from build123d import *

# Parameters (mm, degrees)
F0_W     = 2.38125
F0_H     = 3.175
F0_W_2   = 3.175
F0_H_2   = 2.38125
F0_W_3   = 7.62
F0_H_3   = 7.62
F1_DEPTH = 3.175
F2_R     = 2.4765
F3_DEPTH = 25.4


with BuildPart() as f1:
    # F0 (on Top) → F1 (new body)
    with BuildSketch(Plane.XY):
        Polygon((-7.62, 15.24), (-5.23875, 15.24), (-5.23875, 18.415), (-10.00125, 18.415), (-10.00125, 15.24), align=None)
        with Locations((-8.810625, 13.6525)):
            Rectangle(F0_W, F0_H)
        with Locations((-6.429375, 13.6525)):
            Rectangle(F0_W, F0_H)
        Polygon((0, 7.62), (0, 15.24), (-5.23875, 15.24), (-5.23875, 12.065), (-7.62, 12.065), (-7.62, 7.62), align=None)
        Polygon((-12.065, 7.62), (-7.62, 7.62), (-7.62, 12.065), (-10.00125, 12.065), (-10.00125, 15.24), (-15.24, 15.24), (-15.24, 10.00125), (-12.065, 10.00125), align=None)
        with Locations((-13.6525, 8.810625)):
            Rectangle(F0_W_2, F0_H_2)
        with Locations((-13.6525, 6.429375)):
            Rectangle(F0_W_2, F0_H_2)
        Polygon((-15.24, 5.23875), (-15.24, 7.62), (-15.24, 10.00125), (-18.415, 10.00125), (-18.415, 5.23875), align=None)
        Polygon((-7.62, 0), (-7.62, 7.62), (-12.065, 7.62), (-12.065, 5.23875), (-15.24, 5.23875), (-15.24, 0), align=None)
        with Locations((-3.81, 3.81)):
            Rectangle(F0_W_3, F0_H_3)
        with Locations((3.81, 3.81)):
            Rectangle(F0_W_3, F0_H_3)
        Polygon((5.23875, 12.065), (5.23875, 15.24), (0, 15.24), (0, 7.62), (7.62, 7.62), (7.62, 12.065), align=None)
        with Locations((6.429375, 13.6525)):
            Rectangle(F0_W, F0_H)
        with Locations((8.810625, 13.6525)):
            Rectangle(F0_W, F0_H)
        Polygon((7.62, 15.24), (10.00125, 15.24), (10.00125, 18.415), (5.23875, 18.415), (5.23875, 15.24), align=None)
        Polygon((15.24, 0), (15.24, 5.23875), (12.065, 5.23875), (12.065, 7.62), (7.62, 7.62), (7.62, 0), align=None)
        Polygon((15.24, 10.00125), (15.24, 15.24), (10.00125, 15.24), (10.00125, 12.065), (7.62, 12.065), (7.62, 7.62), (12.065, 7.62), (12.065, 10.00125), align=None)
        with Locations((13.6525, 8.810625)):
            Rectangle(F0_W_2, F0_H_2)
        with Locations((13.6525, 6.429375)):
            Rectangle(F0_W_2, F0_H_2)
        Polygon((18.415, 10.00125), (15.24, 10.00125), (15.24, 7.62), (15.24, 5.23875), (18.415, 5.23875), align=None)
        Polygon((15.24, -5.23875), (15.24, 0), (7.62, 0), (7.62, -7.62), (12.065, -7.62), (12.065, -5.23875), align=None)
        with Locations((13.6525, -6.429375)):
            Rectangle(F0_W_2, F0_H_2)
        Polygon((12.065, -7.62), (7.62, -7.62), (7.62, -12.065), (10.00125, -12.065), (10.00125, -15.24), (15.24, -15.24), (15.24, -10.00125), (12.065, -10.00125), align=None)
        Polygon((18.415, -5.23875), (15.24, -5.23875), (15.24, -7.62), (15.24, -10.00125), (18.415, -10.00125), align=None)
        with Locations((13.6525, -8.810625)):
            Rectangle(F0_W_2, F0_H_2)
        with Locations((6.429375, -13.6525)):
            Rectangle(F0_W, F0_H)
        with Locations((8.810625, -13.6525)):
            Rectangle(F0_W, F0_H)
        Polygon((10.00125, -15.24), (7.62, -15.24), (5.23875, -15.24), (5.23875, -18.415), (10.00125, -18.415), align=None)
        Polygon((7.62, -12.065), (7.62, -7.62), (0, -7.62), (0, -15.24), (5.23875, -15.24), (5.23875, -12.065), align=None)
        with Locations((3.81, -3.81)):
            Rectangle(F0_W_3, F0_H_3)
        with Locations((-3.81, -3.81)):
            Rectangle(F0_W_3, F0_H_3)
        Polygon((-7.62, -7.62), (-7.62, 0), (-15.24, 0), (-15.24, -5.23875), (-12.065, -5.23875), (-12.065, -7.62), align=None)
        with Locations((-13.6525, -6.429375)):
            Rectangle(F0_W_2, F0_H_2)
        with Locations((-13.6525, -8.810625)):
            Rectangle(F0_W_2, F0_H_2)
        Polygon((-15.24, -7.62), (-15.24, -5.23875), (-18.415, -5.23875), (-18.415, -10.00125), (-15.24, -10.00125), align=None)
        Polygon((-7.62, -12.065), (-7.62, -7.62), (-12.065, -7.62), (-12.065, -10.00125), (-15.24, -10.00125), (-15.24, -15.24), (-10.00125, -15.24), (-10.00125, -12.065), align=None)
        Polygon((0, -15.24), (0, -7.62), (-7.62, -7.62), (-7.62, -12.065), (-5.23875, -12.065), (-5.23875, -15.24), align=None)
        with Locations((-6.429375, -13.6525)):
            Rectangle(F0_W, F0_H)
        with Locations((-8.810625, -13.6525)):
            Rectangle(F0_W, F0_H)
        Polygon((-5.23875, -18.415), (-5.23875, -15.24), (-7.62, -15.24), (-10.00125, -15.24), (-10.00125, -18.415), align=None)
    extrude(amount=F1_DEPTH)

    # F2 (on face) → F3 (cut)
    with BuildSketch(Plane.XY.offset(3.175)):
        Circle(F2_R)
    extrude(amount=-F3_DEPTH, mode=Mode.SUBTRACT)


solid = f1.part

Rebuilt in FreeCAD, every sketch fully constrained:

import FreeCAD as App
import Part
import Sketcher
from FreeCAD import Vector
Q = App.Units.Quantity

doc = App.newDocument("Part")
params = doc.addObject("Spreadsheet::Sheet", "Params")
for row, (alias, value) in enumerate([
    ("sketch1_width", "0.125 in"),
    ("sketch1_width2", "0.1875 in"),
    ("pad1_length", "0.125 in"),
    ("sketch2_diameter", "0.195 in"),
    ("pocket1_length", "1 in"),
], start=1):
    params.set(f"A{row}", alias)
    params.set(f"B{row}", "=" + value)
    params.setAlias(f"B{row}", alias)

body = doc.addObject("PartDesign::Body", "Body")

# Sketch on XY plane
sketch1 = body.newObject("Sketcher::SketchObject", "Sketch")
sketch1.AttachmentSupport = (doc.getObject("XY_Plane"), [""])
sketch1.MapMode = "FlatFace"
sketch1.addGeometry(Part.LineSegment(Vector(15.2, -15.2, 0), Vector(15.2, -10, 0)), False)
sketch1.addGeometry(Part.LineSegment(Vector(15.2, -10, 0), Vector(18.4, -10, 0)), False)
sketch1.addGeometry(Part.LineSegment(Vector(18.4, -10, 0), Vector(18.4, -5.2, 0)), False)
sketch1.addGeometry(Part.LineSegment(Vector(18.4, -5.2, 0), Vector(15.2, -5.2, 0)), False)
sketch1.addGeometry(Part.LineSegment(Vector(15.2, -5.2, 0), Vector(15.2, 5.2, 0)), False)
sketch1.addGeometry(Part.LineSegment(Vector(15.2, 5.2, 0), Vector(18.4, 5.2, 0)), False)
sketch1.addGeometry(Part.LineSegment(Vector(18.4, 5.2, 0), Vector(18.4, 10, 0)), False)
sketch1.addGeometry(Part.LineSegment(Vector(18.4, 10, 0), Vector(15.2, 10, 0)), False)
sketch1.addGeometry(Part.LineSegment(Vector(15.2, 10, 0), Vector(15.2, 15.2, 0)), False)
sketch1.addGeometry(Part.LineSegment(Vector(15.2, 15.2, 0), Vector(10, 15.2, 0)), False)
sketch1.addGeometry(Part.LineSegment(Vector(10, 15.2, 0), Vector(10, 18.4, 0)), False)
sketch1.addGeometry(Part.LineSegment(Vector(10, 18.4, 0), Vector(5.2, 18.4, 0)), False)
sketch1.addGeometry(Part.LineSegment(Vector(5.2, 18.4, 0), Vector(5.2, 15.2, 0)), False)
sketch1.addGeometry(Part.LineSegment(Vector(5.2, 15.2, 0), Vector(-5.2, 15.2, 0)), False)
sketch1.addGeometry(Part.LineSegment(Vector(-5.2, 15.2, 0), Vector(-5.2, 18.4, 0)), False)
sketch1.addGeometry(Part.LineSegment(Vector(-5.2, 18.4, 0), Vector(-10, 18.4, 0)), False)
sketch1.addGeometry(Part.LineSegment(Vector(-10, 18.4, 0), Vector(-10, 15.2, 0)), False)
sketch1.addGeometry(Part.LineSegment(Vector(-10, 15.2, 0), Vector(-15.2, 15.2, 0)), False)
sketch1.addGeometry(Part.LineSegment(Vector(-15.2, 15.2, 0), Vector(-15.2, 10, 0)), False)
sketch1.addGeometry(Part.LineSegment(Vector(-15.2, 10, 0), Vector(-18.4, 10, 0)), False)
sketch1.addGeometry(Part.LineSegment(Vector(-18.4, 10, 0), Vector(-18.4, 5.2, 0)), False)
sketch1.addGeometry(Part.LineSegment(Vector(-18.4, 5.2, 0), Vector(-15.2, 5.2, 0)), False)
sketch1.addGeometry(Part.LineSegment(Vector(-15.2, 5.2, 0), Vector(-15.2, -5.2, 0)), False)
sketch1.addGeometry(Part.LineSegment(Vector(-15.2, -5.2, 0), Vector(-18.4, -5.2, 0)), False)
sketch1.addGeometry(Part.LineSegment(Vector(-18.4, -5.2, 0), Vector(-18.4, -10, 0)), False)
sketch1.addGeometry(Part.LineSegment(Vector(-18.4, -10, 0), Vector(-15.2, -10, 0)), False)
sketch1.addGeometry(Part.LineSegment(Vector(-15.2, -10, 0), Vector(-15.2, -15.2, 0)), False)
sketch1.addGeometry(Part.LineSegment(Vector(-15.2, -15.2, 0), Vector(-10, -15.2, 0)), False)
sketch1.addGeometry(Part.LineSegment(Vector(-10, -15.2, 0), Vector(-10, -18.4, 0)), False)
sketch1.addGeometry(Part.LineSegment(Vector(-10, -18.4, 0), Vector(-5.2, -18.4, 0)), False)
sketch1.addGeometry(Part.LineSegment(Vector(-5.2, -18.4, 0), Vector(-5.2, -15.2, 0)), False)
sketch1.addGeometry(Part.LineSegment(Vector(-5.2, -15.2, 0), Vector(5.2, -15.2, 0)), False)
sketch1.addGeometry(Part.LineSegment(Vector(5.2, -15.2, 0), Vector(5.2, -18.4, 0)), False)
sketch1.addGeometry(Part.LineSegment(Vector(5.2, -18.4, 0), Vector(10, -18.4, 0)), False)
sketch1.addGeometry(Part.LineSegment(Vector(10, -18.4, 0), Vector(10, -15.2, 0)), False)
sketch1.addGeometry(Part.LineSegment(Vector(10, -15.2, 0), Vector(15.2, -15.2, 0)), False)
sketch1.addConstraint(Sketcher.Constraint("Coincident", 0, 2, 1, 1))
sketch1.addConstraint(Sketcher.Constraint("Coincident", 1, 2, 2, 1))
sketch1.addConstraint(Sketcher.Constraint("Coincident", 2, 2, 3, 1))
sketch1.addConstraint(Sketcher.Constraint("Coincident", 3, 2, 4, 1))
sketch1.addConstraint(Sketcher.Constraint("Coincident", 4, 2, 5, 1))
sketch1.addConstraint(Sketcher.Constraint("Coincident", 5, 2, 6, 1))
sketch1.addConstraint(Sketcher.Constraint("Coincident", 6, 2, 7, 1))
sketch1.addConstraint(Sketcher.Constraint("Coincident", 7, 2, 8, 1))
sketch1.addConstraint(Sketcher.Constraint("Coincident", 8, 2, 9, 1))
sketch1.addConstraint(Sketcher.Constraint("Coincident", 9, 2, 10, 1))
sketch1.addConstraint(Sketcher.Constraint("Coincident", 10, 2, 11, 1))
sketch1.addConstraint(Sketcher.Constraint("Coincident", 11, 2, 12, 1))
sketch1.addConstraint(Sketcher.Constraint("Coincident", 12, 2, 13, 1))
sketch1.addConstraint(Sketcher.Constraint("Coincident", 13, 2, 14, 1))
sketch1.addConstraint(Sketcher.Constraint("Coincident", 14, 2, 15, 1))
sketch1.addConstraint(Sketcher.Constraint("Coincident", 15, 2, 16, 1))
sketch1.addConstraint(Sketcher.Constraint("Coincident", 16, 2, 17, 1))
sketch1.addConstraint(Sketcher.Constraint("Coincident", 17, 2, 18, 1))
sketch1.addConstraint(Sketcher.Constraint("Coincident", 18, 2, 19, 1))
sketch1.addConstraint(Sketcher.Constraint("Coincident", 19, 2, 20, 1))
sketch1.addConstraint(Sketcher.Constraint("Coincident", 20, 2, 21, 1))
sketch1.addConstraint(Sketcher.Constraint("Coincident", 21, 2, 22, 1))
sketch1.addConstraint(Sketcher.Constraint("Coincident", 22, 2, 23, 1))
sketch1.addConstraint(Sketcher.Constraint("Coincident", 23, 2, 24, 1))
sketch1.addConstraint(Sketcher.Constraint("Coincident", 24, 2, 25, 1))
sketch1.addConstraint(Sketcher.Constraint("Coincident", 25, 2, 26, 1))
sketch1.addConstraint(Sketcher.Constraint("Coincident", 26, 2, 27, 1))
sketch1.addConstraint(Sketcher.Constraint("Coincident", 27, 2, 28, 1))
sketch1.addConstraint(Sketcher.Constraint("Coincident", 28, 2, 29, 1))
sketch1.addConstraint(Sketcher.Constraint("Coincident", 29, 2, 30, 1))
sketch1.addConstraint(Sketcher.Constraint("Coincident", 30, 2, 31, 1))
sketch1.addConstraint(Sketcher.Constraint("Coincident", 31, 2, 32, 1))
sketch1.addConstraint(Sketcher.Constraint("Coincident", 32, 2, 33, 1))
sketch1.addConstraint(Sketcher.Constraint("Coincident", 33, 2, 34, 1))
sketch1.addConstraint(Sketcher.Constraint("Coincident", 34, 2, 35, 1))
sketch1.addConstraint(Sketcher.Constraint("Coincident", 35, 2, 0, 1))
sketch1.addConstraint(Sketcher.Constraint("Vertical", 0))
sketch1.addConstraint(Sketcher.Constraint("Horizontal", 1))
sketch1.addConstraint(Sketcher.Constraint("Vertical", 2))
sketch1.addConstraint(Sketcher.Constraint("Horizontal", 3))
sketch1.addConstraint(Sketcher.Constraint("Vertical", 4))
sketch1.addConstraint(Sketcher.Constraint("Horizontal", 5))
sketch1.addConstraint(Sketcher.Constraint("Vertical", 6))
sketch1.addConstraint(Sketcher.Constraint("Horizontal", 7))
sketch1.addConstraint(Sketcher.Constraint("Vertical", 8))
sketch1.addConstraint(Sketcher.Constraint("Horizontal", 9))
sketch1.addConstraint(Sketcher.Constraint("Vertical", 10))
sketch1.addConstraint(Sketcher.Constraint("Horizontal", 11))
sketch1.addConstraint(Sketcher.Constraint("Vertical", 12))
sketch1.addConstraint(Sketcher.Constraint("Horizontal", 13))
sketch1.addConstraint(Sketcher.Constraint("Vertical", 14))
sketch1.addConstraint(Sketcher.Constraint("Horizontal", 15))
sketch1.addConstraint(Sketcher.Constraint("Vertical", 16))
sketch1.addConstraint(Sketcher.Constraint("Horizontal", 17))
sketch1.addConstraint(Sketcher.Constraint("Vertical", 18))
sketch1.addConstraint(Sketcher.Constraint("Horizontal", 19))
sketch1.addConstraint(Sketcher.Constraint("Vertical", 20))
sketch1.addConstraint(Sketcher.Constraint("Horizontal", 21))
sketch1.addConstraint(Sketcher.Constraint("Vertical", 22))
sketch1.addConstraint(Sketcher.Constraint("Horizontal", 23))
sketch1.addConstraint(Sketcher.Constraint("Vertical", 24))
sketch1.addConstraint(Sketcher.Constraint("Horizontal", 25))
sketch1.addConstraint(Sketcher.Constraint("Vertical", 26))
sketch1.addConstraint(Sketcher.Constraint("Horizontal", 27))
sketch1.addConstraint(Sketcher.Constraint("Vertical", 28))
sketch1.addConstraint(Sketcher.Constraint("Horizontal", 29))
sketch1.addConstraint(Sketcher.Constraint("Vertical", 30))
sketch1.addConstraint(Sketcher.Constraint("Horizontal", 31))
sketch1.addConstraint(Sketcher.Constraint("Vertical", 32))
sketch1.addConstraint(Sketcher.Constraint("Horizontal", 33))
sketch1.addConstraint(Sketcher.Constraint("Vertical", 34))
sketch1.addConstraint(Sketcher.Constraint("Horizontal", 35))
sketch1.addConstraint(Sketcher.Constraint("Symmetric", 0, 2, 18, 2, -1, 1))
sketch1.addConstraint(Sketcher.Constraint("Symmetric", 2, 2, 20, 2, -1, 1))
sketch1.addConstraint(Sketcher.Constraint("Symmetric", 4, 2, 22, 2, -1, 1))
sketch1.addConstraint(Sketcher.Constraint("Symmetric", 6, 2, 24, 2, -1, 1))
sketch1.addConstraint(Sketcher.Constraint("Symmetric", 8, 2, 26, 2, -1, 1))
sketch1.addConstraint(Sketcher.Constraint("Symmetric", 10, 2, 28, 2, -1, 1))
sketch1.addConstraint(Sketcher.Constraint("Symmetric", 12, 2, 30, 2, -1, 1))
sketch1.addConstraint(Sketcher.Constraint("Symmetric", 14, 2, 32, 2, -1, 1))
sketch1.addConstraint(Sketcher.Constraint("Symmetric", 16, 2, 34, 2, -1, 1))
sketch1.addConstraint(Sketcher.Constraint("Symmetric", 11, 2, 14, 2, -2))
sketch1.addConstraint(Sketcher.Constraint("Symmetric", 9, 2, 16, 2, -2))
sketch1.addConstraint(Sketcher.Constraint("Symmetric", 7, 2, 18, 2, -2))
sketch1.addConstraint(Sketcher.Constraint("Symmetric", 5, 2, 20, 2, -2))
sketch1.addConstraint(Sketcher.Constraint("Horizontal", 9, 2, 12, 2))
sketch1.addConstraint(Sketcher.Constraint("Vertical", 0, 2, 3, 2))
sketch1.addConstraint(Sketcher.Constraint("Equal", 35, 0))
sketch1.addConstraint(Sketcher.Constraint("Equal", 33, 2))
sketch1.addConstraint(Sketcher.Constraint("Equal", 31, 4))
sketch1.addConstraint(Sketcher.Constraint("Equal", 25, 10))
sketch1.addConstraint(Sketcher.Constraint("DistanceX", -1, 1, 0, 2, Q("0.6 in")))
sketch1.addConstraint(Sketcher.Constraint("DistanceY", 0, 2, 4, 2, Q("0.6 in")))
sketch1.addConstraint(Sketcher.Constraint("DistanceX", 1, 1, 1, 2, Q("0.125 in")))
sketch1.addConstraint(Sketcher.Constraint("DistanceX", 11, 2, 11, 1, Q("0.1875 in")))
sketch1.setExpression("Constraints[93]", "Params.sketch1_width")
sketch1.setExpression("Constraints[94]", "Params.sketch1_width2")
pad1 = body.newObject("PartDesign::Pad", "Pad")
pad1.Profile = sketch1
pad1.setExpression("Length", "Params.pad1_length")

# Sketch on XY plane
sketch2 = body.newObject("Sketcher::SketchObject", "Sketch001")
sketch2.AttachmentSupport = (doc.getObject("XY_Plane"), [""])
sketch2.MapMode = "FlatFace"
sketch2.AttachmentOffset = App.Placement(Vector(0, 0, 0.125 * 25.4), App.Rotation())
sketch2.addGeometry(Part.Circle(Vector(0, 0, 0), Vector(0, 0, 1), 2.5), False)
sketch2.addConstraint(Sketcher.Constraint("Coincident", 0, 3, -1, 1))
sketch2.addConstraint(Sketcher.Constraint("Diameter", 0, Q("0.195 in")))
sketch2.setExpression("Constraints[1]", "Params.sketch2_diameter")
pocket1 = body.newObject("PartDesign::Pocket", "Pocket")
pocket1.Profile = sketch2
pocket1.setExpression("Length", "Params.pocket1_length")

doc.recompute()
